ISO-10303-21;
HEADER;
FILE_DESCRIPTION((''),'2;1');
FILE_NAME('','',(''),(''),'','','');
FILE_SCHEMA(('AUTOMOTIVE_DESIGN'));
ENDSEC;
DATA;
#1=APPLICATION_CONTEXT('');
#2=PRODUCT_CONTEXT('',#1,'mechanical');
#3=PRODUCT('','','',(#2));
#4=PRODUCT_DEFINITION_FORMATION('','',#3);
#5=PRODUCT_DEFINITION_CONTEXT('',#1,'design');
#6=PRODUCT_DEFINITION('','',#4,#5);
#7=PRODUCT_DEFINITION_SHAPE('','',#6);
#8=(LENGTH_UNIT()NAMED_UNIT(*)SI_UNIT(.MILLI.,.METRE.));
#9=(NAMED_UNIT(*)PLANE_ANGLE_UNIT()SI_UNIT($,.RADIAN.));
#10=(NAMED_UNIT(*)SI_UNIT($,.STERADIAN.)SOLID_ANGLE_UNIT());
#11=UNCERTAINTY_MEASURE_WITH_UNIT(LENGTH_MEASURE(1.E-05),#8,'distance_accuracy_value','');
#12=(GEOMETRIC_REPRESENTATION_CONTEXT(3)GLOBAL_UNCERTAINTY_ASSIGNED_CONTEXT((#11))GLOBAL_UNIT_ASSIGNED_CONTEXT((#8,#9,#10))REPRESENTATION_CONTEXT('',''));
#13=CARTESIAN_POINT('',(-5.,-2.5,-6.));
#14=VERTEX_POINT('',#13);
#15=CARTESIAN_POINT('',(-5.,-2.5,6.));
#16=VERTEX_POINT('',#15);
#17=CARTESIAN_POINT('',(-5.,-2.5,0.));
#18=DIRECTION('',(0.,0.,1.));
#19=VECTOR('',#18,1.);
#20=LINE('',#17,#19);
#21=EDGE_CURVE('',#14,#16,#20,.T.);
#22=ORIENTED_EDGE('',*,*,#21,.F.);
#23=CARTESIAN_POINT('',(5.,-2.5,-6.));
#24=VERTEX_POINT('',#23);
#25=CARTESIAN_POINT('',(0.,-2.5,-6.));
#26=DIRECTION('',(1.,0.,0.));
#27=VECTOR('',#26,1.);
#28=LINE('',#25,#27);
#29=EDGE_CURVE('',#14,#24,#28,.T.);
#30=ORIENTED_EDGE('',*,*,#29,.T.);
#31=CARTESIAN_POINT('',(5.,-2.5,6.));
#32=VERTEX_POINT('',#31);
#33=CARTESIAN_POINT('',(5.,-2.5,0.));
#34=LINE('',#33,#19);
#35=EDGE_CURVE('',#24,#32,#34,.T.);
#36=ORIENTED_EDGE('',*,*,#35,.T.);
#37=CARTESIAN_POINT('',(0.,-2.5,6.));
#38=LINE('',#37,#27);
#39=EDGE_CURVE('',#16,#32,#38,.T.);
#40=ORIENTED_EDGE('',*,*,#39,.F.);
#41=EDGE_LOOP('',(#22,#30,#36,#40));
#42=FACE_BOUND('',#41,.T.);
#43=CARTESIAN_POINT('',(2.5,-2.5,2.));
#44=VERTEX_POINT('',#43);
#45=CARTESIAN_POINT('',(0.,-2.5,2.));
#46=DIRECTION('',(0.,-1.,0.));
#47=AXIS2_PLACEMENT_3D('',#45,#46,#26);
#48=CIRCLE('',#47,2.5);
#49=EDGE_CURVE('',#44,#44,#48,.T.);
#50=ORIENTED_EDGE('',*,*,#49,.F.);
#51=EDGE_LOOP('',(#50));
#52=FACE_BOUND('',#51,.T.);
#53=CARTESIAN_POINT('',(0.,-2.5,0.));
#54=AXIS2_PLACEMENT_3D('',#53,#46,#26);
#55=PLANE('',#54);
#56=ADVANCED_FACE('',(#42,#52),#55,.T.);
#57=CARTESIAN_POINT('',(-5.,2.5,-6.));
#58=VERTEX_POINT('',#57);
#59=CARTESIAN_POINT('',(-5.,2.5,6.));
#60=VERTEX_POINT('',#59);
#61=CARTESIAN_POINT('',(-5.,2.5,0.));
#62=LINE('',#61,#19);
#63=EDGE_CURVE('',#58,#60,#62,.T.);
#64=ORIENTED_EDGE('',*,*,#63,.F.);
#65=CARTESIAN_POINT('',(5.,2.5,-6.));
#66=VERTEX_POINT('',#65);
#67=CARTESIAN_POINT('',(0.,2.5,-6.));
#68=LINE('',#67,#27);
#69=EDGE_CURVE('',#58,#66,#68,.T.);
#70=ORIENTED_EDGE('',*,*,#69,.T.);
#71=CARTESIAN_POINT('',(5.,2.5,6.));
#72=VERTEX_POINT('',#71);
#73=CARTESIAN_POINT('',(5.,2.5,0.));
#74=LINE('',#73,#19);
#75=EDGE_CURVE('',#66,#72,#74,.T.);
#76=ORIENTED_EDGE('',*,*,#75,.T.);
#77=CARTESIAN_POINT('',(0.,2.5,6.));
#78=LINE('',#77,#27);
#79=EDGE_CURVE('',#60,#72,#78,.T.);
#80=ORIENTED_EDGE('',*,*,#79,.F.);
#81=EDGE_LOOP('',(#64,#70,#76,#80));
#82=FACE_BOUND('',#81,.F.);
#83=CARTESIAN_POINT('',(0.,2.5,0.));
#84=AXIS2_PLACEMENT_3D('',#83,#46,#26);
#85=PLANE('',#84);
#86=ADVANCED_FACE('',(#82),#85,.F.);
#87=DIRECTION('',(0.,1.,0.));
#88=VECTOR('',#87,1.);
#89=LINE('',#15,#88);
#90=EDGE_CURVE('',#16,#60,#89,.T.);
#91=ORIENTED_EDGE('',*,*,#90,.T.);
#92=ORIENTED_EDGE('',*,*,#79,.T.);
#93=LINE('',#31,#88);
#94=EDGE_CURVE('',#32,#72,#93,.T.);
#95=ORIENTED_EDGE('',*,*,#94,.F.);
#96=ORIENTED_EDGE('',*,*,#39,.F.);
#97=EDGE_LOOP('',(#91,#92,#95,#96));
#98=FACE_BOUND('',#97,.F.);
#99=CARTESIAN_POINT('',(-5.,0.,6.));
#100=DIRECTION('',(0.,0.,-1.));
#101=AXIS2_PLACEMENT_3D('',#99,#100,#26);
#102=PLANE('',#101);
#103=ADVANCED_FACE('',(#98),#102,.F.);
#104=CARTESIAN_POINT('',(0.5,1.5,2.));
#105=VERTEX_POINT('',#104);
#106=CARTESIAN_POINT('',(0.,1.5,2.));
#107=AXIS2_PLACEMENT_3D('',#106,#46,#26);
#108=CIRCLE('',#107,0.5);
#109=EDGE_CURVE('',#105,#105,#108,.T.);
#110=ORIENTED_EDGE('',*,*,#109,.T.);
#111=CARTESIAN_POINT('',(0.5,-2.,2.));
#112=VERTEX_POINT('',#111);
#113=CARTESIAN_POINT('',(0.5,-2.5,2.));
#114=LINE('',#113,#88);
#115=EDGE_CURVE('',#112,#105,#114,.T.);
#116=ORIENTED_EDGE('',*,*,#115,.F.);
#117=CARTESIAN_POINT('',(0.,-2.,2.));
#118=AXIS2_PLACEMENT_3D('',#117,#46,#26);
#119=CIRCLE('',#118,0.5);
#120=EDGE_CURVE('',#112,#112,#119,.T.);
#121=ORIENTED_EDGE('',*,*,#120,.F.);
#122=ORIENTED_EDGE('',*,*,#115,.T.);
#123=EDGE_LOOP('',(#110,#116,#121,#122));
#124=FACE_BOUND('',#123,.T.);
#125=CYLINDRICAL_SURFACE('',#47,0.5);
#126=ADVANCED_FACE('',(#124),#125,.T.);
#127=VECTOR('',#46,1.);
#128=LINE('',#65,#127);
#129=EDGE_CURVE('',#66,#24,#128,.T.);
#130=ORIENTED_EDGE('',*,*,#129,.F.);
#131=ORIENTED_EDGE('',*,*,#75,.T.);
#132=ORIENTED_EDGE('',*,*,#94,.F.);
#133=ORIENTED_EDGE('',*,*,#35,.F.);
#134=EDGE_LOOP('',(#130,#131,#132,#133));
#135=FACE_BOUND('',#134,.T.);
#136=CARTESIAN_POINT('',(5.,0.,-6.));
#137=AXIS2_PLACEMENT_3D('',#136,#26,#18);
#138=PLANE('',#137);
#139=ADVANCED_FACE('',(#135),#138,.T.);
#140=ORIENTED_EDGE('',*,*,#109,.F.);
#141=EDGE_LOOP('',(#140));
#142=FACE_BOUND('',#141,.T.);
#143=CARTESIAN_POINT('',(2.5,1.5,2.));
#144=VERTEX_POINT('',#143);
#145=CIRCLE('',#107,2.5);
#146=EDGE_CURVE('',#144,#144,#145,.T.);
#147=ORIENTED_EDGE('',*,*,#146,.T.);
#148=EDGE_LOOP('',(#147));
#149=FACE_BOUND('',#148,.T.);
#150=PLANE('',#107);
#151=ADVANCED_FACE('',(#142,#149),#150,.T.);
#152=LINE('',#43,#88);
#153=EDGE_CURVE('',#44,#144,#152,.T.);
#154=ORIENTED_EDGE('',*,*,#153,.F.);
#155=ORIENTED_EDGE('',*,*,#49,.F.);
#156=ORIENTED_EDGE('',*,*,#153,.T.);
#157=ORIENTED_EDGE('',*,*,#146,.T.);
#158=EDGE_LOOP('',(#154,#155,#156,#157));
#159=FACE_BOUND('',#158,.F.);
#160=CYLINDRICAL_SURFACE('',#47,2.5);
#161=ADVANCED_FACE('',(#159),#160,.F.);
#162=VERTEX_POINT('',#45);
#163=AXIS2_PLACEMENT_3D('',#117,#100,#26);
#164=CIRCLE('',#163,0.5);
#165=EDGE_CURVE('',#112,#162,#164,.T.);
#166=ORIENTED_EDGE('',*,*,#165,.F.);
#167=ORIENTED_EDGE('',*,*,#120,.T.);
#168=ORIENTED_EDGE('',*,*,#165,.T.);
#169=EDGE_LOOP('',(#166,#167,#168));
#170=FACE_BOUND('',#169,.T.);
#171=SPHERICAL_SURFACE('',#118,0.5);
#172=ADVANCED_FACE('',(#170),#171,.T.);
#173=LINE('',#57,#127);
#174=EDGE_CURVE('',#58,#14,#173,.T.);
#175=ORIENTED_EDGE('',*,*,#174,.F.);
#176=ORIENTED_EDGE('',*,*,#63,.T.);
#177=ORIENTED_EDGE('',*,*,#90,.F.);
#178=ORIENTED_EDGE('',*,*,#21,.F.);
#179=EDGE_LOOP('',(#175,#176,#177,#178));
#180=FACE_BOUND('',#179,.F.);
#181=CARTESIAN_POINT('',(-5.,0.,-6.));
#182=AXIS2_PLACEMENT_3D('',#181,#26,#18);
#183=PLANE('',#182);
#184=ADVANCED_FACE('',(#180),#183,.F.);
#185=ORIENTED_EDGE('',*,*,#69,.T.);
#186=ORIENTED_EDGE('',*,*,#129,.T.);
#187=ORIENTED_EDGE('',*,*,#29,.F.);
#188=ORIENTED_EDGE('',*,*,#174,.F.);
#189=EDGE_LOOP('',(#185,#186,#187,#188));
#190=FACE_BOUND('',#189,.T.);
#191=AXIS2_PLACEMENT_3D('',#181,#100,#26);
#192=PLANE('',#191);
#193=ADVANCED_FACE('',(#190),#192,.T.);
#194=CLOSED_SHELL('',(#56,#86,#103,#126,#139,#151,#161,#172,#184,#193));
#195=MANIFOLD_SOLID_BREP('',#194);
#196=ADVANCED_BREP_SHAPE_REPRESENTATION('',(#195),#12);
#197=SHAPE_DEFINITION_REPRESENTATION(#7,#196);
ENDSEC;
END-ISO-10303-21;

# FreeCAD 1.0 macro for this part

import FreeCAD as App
import Part
import Sketcher
Q = App.Units.Quantity


def edges_at(feature, points):
    """Names of the edges that pass closest to the given points."""
    edges = feature.Shape.Edges
    near = lambda p: min(range(len(edges)), key=lambda i: edges[i].distToShape(Part.Vertex(*p))[0])
    return sorted({f"Edge{near(p) + 1}" for p in points})


def add_polygon(sketch, points):
    """Adds a closed chain of lines whose ends are joined by coincident constraints."""
    first, n = sketch.GeometryCount, len(points)
    for a, b in zip(points, points[1:] + points[:1]):
        sketch.addGeometry(Part.LineSegment(App.Vector(*a, 0), App.Vector(*b, 0)), False)
    for i in range(n):
        sketch.addConstraint(Sketcher.Constraint("Coincident", first + i, 2, first + (i + 1) % n, 1))

doc = App.newDocument("Part")
body = doc.addObject("PartDesign::Body", "Body")

sketch1 = body.newObject("Sketcher::SketchObject", "Sketch")
sketch1.AttachmentSupport = (doc.getObject("XZ_Plane"), [""])
sketch1.MapMode = "FlatFace"
add_polygon(sketch1, [(-5, 6), (-5, -6), (5, -6), (5, 6)])
sketch1.addConstraint([
    Sketcher.Constraint("Vertical", 0),
    Sketcher.Constraint("Horizontal", 1),
    Sketcher.Constraint("Vertical", 2),
    Sketcher.Constraint("Horizontal", 3),
    Sketcher.Constraint("Symmetric", 0, 2, 2, 2, -1, 1),
    Sketcher.Constraint("DistanceX", 1, 1, 1, 2, Q("10 mm")),
    Sketcher.Constraint("DistanceY", 0, 2, 0, 1, Q("12 mm")),
])
pad1 = body.newObject("PartDesign::Pad", "Pad")
pad1.Profile = sketch1
pad1.Length = 5
pad1.Midplane = True

sketch2 = body.newObject("Sketcher::SketchObject", "Sketch001")
sketch2.AttachmentSupport = (doc.getObject("XZ_Plane"), [""])
sketch2.MapMode = "FlatFace"
sketch2.AttachmentOffset = App.Placement(App.Vector(0, 0, 2.5), App.Rotation())
sketch2.addGeometry([
    Part.Circle(App.Vector(0, 2, 0), App.Vector(0, 0, 1), 2.5),
    Part.Circle(App.Vector(0, 2, 0), App.Vector(0, 0, 1), 0.5),
], False)
sketch2.addConstraint([
    Sketcher.Constraint("Coincident", 1, 3, 0, 3),
    Sketcher.Constraint("PointOnObject", 0, 3, -2),
    Sketcher.Constraint("Diameter", 0, Q("5 mm")),
    Sketcher.Constraint("Diameter", 1, Q("1 mm")),
    Sketcher.Constraint("DistanceY", -1, 1, 0, 3, Q("2 mm")),
])
pocket1 = body.newObject("PartDesign::Pocket", "Pocket")
pocket1.Profile = sketch2
pocket1.Length = 4
doc.recompute()

fillet = body.newObject("PartDesign::Fillet", "Fillet")
fillet.Base = (pocket1, edges_at(pocket1, [(-0.5, -2.5, 2)]))
fillet.Radius = 0.5

doc.recompute()
